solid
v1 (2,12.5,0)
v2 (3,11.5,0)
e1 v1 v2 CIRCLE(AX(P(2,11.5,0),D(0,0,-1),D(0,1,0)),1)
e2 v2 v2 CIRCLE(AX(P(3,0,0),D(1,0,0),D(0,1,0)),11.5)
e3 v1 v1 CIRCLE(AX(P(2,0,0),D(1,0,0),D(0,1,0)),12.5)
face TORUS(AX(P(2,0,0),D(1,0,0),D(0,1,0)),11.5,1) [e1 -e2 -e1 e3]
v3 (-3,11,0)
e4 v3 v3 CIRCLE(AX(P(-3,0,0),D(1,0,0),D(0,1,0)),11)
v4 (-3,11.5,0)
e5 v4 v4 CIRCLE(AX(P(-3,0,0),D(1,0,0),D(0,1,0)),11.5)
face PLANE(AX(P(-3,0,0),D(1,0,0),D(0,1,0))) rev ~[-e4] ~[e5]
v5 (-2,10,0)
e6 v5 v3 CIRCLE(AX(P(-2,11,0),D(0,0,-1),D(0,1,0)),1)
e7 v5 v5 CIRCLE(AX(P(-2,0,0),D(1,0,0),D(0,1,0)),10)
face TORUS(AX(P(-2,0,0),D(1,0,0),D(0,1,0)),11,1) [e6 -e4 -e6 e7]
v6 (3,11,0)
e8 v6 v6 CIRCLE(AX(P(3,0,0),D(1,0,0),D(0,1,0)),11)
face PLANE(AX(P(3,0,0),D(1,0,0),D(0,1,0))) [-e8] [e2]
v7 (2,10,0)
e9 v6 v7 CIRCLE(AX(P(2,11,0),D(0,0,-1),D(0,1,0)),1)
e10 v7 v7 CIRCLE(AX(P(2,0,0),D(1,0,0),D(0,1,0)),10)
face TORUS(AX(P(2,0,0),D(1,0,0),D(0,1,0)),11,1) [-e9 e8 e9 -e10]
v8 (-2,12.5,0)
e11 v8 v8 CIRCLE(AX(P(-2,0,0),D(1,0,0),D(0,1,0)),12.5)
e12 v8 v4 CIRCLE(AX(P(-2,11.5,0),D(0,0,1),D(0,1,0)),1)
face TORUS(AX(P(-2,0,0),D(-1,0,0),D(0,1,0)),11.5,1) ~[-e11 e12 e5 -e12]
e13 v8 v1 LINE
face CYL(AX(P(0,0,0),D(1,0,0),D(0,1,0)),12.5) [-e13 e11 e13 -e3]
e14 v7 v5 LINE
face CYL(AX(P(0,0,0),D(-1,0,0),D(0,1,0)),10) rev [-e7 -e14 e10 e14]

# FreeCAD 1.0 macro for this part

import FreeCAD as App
import Part
import Sketcher

V = App.Vector


def edges_at(feature, points):
    """Names of the edges that pass closest to the given points."""
    edges = feature.Shape.Edges
    near = lambda p: min(range(len(edges)), key=lambda i: edges[i].distToShape(Part.Vertex(*p))[0])
    return sorted({f"Edge{near(p) + 1}" for p in points})

doc = App.newDocument("Part")
body = doc.addObject("PartDesign::Body", "Body")

# Sketch on YZ plane
sketch1 = doc.addObject("Sketcher::SketchObject", "Sketch")
body.addObject(sketch1)
sketch1.AttachmentSupport = (doc.YZ_Plane, [""])
sketch1.MapMode = "FlatFace"
sketch1.addGeometry(Part.Circle(V(0, 0, 0), V(0, 0, 1), 12), False)
sketch1.addGeometry(Part.Circle(V(0, 0, 0), V(0, 0, 1), 10), False)
sketch1.addConstraint(Sketcher.Constraint("Coincident", 0, 3, -1, 1))
sketch1.addConstraint(Sketcher.Constraint("Coincident", 1, 3, -1, 1))
sketch1.addConstraint(Sketcher.Constraint("Diameter", 0, 25.0))
sketch1.addConstraint(Sketcher.Constraint("Diameter", 1, 20.0))
pad1 = doc.addObject("PartDesign::Pad", "Pad")
body.addObject(pad1)
pad1.Profile = sketch1
pad1.Length = 6
pad1.Midplane = True
doc.recompute()

fillet = doc.addObject("PartDesign::Fillet", "Fillet")
body.addObject(fillet)
fillet.Base = (pad1, edges_at(pad1, [
    (3, -12.5, 0),
    (3, -10, 0),
    (-3, -10, 0),
    (-3, -12.5, 0),
]))
fillet.Radius = 1

doc.recompute()
